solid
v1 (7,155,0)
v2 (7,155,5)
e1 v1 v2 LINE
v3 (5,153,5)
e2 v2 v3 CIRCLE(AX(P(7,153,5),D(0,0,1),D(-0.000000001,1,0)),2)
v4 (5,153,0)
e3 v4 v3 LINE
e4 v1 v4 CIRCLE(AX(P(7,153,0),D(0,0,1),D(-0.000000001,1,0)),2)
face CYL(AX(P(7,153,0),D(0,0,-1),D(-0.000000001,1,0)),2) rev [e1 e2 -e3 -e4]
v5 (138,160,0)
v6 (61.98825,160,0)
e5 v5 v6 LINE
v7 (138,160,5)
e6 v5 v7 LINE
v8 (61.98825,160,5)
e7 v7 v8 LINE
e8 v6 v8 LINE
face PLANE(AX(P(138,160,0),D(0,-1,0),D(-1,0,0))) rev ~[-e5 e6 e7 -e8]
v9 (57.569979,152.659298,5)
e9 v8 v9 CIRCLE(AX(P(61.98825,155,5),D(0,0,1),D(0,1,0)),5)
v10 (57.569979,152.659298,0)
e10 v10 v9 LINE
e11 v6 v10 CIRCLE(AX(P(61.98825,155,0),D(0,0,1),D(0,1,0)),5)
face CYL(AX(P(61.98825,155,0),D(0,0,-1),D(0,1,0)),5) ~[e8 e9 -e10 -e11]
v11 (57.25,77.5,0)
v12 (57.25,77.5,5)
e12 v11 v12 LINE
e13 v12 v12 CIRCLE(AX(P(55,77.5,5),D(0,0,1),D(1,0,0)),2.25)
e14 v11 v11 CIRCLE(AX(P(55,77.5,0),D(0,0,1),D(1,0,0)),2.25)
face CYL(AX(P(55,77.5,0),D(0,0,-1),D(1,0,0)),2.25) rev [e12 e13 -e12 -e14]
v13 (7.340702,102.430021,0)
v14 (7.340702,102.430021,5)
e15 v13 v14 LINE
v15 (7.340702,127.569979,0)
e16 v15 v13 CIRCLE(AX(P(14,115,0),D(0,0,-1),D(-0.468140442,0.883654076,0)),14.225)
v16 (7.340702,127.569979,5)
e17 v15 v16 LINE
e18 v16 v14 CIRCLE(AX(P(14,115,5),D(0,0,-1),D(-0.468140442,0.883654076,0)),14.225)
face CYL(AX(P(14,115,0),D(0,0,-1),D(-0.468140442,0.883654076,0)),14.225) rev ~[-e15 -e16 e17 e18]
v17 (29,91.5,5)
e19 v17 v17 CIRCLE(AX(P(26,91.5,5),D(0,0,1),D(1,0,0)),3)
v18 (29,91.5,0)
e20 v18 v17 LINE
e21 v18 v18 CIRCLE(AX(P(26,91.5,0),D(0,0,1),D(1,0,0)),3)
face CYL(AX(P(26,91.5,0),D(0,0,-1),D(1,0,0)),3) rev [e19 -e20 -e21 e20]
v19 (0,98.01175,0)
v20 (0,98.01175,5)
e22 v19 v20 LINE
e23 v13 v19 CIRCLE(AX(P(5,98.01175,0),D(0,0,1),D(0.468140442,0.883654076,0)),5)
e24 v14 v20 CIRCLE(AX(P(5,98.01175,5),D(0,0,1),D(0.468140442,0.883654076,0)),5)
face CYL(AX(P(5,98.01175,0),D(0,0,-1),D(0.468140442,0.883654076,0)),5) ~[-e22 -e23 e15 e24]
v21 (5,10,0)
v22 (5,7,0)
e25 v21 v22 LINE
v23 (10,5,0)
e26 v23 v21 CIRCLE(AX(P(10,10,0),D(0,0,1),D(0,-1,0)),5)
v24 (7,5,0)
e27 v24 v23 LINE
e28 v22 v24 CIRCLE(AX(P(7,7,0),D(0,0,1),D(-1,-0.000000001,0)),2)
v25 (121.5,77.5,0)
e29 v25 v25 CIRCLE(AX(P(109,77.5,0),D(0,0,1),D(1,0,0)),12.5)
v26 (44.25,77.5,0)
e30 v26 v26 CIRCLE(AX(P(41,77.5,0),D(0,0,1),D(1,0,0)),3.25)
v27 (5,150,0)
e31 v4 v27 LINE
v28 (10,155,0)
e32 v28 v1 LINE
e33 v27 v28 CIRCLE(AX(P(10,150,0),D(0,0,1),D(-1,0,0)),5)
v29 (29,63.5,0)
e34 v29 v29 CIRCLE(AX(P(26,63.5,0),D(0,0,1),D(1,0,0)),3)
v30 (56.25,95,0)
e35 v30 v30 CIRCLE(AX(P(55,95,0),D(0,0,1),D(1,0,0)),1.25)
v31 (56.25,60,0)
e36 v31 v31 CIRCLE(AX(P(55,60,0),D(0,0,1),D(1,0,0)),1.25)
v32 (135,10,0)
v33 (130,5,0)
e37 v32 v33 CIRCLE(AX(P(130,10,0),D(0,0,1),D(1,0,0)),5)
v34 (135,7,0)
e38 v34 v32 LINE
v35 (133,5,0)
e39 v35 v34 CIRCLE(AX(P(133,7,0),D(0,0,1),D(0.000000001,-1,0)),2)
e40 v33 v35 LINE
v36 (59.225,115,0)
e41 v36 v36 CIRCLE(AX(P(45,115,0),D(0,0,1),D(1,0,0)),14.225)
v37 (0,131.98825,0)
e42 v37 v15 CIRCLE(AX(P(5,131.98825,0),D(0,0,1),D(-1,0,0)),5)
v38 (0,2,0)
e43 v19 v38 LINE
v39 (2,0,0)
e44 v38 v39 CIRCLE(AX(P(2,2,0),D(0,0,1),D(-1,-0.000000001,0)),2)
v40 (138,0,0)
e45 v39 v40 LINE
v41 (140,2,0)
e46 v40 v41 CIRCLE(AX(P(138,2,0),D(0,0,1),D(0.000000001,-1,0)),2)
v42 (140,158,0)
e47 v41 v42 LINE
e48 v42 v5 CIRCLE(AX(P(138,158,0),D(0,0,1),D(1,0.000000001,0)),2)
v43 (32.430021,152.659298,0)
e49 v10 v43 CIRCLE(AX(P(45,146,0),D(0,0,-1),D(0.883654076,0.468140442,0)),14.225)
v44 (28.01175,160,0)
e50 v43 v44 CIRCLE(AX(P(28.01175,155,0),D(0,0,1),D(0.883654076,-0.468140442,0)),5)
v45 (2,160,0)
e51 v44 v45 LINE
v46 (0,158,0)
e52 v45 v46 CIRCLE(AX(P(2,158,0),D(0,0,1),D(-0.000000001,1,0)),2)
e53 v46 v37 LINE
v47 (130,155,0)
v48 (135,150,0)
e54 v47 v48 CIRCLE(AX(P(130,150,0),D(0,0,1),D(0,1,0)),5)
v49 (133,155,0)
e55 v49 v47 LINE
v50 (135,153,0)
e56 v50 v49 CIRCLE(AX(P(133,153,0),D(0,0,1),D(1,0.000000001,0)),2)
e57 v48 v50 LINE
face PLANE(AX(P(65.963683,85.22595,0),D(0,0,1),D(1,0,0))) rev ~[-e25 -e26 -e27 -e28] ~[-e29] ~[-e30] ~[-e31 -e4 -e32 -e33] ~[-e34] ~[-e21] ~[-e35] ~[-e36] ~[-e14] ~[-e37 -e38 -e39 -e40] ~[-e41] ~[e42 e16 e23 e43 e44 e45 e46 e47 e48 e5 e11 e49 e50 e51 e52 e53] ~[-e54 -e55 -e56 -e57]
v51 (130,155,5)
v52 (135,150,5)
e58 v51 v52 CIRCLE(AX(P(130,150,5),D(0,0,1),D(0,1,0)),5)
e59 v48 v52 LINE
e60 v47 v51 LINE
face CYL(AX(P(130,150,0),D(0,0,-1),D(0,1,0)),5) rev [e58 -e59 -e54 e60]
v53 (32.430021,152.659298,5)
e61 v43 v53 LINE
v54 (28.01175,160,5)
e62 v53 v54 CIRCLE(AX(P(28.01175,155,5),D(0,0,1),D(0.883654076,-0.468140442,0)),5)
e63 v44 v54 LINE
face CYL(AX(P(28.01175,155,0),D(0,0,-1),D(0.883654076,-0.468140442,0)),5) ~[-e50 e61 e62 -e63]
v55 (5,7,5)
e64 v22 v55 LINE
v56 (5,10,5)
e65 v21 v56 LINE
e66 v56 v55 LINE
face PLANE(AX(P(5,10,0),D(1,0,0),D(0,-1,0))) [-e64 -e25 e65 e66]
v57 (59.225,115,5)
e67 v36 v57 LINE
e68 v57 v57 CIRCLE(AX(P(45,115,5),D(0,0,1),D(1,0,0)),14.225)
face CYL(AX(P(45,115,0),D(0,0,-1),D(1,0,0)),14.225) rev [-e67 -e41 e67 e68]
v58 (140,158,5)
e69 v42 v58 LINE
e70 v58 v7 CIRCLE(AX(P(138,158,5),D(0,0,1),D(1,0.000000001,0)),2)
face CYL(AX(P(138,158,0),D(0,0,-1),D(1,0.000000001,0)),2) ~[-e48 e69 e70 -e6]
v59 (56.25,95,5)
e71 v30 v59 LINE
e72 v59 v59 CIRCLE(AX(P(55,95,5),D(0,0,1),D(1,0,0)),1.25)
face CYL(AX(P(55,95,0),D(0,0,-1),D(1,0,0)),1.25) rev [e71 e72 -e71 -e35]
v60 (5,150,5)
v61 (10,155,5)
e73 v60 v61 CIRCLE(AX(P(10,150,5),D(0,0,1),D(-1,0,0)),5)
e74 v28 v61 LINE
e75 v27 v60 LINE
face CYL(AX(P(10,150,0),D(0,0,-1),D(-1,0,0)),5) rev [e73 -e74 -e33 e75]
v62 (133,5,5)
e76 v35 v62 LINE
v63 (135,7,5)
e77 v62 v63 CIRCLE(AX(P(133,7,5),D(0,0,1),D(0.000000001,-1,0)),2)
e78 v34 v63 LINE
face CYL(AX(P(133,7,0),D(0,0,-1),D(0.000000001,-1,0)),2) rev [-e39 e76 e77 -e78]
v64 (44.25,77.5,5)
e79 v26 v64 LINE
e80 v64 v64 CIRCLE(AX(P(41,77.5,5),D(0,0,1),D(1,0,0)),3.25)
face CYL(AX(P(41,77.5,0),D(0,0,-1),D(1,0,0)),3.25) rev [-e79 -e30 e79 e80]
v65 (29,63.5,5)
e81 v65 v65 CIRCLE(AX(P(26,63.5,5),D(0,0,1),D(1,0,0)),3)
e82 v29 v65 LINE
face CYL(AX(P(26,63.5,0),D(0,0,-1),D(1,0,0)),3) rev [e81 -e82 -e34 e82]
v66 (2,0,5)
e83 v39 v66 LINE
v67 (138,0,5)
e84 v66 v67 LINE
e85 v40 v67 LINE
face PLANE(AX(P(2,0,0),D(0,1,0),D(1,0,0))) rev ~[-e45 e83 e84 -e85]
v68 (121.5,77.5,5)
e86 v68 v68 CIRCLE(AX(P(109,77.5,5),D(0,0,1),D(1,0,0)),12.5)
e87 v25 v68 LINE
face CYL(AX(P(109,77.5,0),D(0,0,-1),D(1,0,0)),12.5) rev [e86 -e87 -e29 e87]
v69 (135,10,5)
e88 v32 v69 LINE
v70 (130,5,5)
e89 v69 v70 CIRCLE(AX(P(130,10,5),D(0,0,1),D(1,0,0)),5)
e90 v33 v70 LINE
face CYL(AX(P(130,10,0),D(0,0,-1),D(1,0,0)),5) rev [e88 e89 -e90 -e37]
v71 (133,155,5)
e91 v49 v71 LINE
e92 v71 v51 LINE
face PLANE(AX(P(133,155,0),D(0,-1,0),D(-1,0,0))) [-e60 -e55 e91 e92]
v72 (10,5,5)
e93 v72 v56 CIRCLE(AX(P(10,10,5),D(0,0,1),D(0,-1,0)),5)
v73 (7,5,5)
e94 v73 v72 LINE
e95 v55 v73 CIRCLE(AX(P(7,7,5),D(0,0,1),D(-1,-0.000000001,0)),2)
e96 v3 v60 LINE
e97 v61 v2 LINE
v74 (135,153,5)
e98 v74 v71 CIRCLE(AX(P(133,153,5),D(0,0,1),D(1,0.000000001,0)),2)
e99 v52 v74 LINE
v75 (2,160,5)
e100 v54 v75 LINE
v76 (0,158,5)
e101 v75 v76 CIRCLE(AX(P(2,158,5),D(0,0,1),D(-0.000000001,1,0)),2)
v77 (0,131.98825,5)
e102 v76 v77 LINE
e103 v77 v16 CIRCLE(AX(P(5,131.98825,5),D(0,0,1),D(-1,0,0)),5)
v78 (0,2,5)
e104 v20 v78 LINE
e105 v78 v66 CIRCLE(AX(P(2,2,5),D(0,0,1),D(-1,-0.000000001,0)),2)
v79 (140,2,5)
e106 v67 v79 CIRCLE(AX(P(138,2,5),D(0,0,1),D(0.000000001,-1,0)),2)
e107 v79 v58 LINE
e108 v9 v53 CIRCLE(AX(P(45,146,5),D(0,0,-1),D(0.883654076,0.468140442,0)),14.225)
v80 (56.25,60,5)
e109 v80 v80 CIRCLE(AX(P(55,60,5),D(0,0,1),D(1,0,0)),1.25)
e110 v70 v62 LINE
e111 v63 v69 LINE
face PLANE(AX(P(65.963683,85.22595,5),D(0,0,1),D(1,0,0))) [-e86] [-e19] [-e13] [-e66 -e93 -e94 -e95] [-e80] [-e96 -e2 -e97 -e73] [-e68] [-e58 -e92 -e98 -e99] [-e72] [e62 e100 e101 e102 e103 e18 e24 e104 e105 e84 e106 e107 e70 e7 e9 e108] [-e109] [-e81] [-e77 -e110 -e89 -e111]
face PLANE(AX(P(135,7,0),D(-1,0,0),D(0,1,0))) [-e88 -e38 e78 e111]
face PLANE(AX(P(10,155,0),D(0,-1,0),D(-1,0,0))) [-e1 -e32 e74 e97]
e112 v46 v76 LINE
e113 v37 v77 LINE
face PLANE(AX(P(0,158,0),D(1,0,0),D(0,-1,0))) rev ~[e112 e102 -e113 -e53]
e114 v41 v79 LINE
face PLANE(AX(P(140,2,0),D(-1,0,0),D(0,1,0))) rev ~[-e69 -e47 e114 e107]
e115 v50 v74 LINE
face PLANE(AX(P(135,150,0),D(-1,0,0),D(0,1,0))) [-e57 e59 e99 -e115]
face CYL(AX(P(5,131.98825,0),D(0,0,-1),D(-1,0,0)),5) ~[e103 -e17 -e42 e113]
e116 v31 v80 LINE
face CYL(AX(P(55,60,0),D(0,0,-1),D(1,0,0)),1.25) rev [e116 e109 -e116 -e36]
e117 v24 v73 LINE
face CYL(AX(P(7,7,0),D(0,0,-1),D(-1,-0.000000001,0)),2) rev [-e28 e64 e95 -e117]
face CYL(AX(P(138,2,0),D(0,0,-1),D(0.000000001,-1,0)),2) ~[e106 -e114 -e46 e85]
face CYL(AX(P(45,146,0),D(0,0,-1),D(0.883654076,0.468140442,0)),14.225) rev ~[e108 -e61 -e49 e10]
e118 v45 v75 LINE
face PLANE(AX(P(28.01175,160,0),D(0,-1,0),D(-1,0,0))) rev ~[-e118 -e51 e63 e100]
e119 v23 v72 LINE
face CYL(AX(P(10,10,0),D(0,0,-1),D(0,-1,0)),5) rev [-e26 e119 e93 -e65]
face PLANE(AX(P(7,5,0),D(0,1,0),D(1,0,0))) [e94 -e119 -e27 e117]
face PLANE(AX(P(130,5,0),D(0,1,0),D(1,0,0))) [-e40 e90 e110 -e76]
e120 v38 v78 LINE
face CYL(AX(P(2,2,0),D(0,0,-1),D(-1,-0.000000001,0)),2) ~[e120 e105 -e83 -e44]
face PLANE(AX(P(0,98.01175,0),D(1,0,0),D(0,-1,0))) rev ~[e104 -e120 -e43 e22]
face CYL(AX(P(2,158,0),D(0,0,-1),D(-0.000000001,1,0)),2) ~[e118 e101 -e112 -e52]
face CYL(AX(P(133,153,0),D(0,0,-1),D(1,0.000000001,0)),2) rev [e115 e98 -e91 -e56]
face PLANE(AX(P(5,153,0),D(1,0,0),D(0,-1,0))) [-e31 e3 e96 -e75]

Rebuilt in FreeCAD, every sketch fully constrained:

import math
import FreeCAD as App
import Part
import Sketcher
Q = App.Units.Quantity

doc = App.newDocument("Part")
body = doc.addObject("PartDesign::Body", "Body")

# Sketch on XY plane
sketch1 = doc.addObject("Sketcher::SketchObject", "Sketch")
body.addObject(sketch1)
sketch1.AttachmentSupport = (doc.XY_Plane, [""])
sketch1.MapMode = "FlatFace"
sketch1.addGeometry([
    Part.LineSegment(App.Vector(28.01175, 160, 0), App.Vector(2, 160, 0)),  # 0
    Part.ArcOfCircle(Part.Circle(App.Vector(2, 158, 0), App.Vector(0, 0, 1), 2), math.radians(90), math.radians(180)),  # 1
    Part.LineSegment(App.Vector(0, 158, 0), App.Vector(0, 131.98825, 0)),  # 2
    Part.ArcOfCircle(Part.Circle(App.Vector(5, 131.98825, 0), App.Vector(0, 0, 1), 5), math.radians(-180), math.radians(-62.086344)),  # 3
    Part.ArcOfCircle(Part.Circle(App.Vector(14, 115, 0), App.Vector(0, 0, 1), 14.225), math.radians(-117.913656), math.radians(117.913656)),  # 4
    Part.ArcOfCircle(Part.Circle(App.Vector(5, 98.01175, 0), App.Vector(0, 0, 1), 5), math.radians(62.086344), math.radians(180)),  # 5
    Part.LineSegment(App.Vector(0, 98.01175, 0), App.Vector(0, 2, 0)),  # 6
    Part.ArcOfCircle(Part.Circle(App.Vector(2, 2, 0), App.Vector(0, 0, 1), 2), math.radians(-180), math.radians(-90)),  # 7
    Part.LineSegment(App.Vector(2, 0, 0), App.Vector(138, 0, 0)),  # 8
    Part.ArcOfCircle(Part.Circle(App.Vector(138, 2, 0), App.Vector(0, 0, 1), 2), math.radians(-90), math.radians(0)),  # 9
    Part.LineSegment(App.Vector(140, 2, 0), App.Vector(140, 158, 0)),  # 10
    Part.ArcOfCircle(Part.Circle(App.Vector(138, 158, 0), App.Vector(0, 0, 1), 2), math.radians(0), math.radians(90)),  # 11
    Part.LineSegment(App.Vector(138, 160, 0), App.Vector(61.98825, 160, 0)),  # 12
    Part.ArcOfCircle(Part.Circle(App.Vector(61.98825, 155, 0), App.Vector(0, 0, 1), 5), math.radians(90), math.radians(207.913656)),  # 13
    Part.ArcOfCircle(Part.Circle(App.Vector(45, 146, 0), App.Vector(0, 0, 1), 14.225), math.radians(152.086344), math.radians(387.913656)),  # 14
    Part.ArcOfCircle(Part.Circle(App.Vector(28.01175, 155, 0), App.Vector(0, 0, 1), 5), math.radians(-27.913656), math.radians(90)),  # 15
    Part.LineSegment(App.Vector(10, 5, 0), App.Vector(7, 5, 0)),  # 16
    Part.ArcOfCircle(Part.Circle(App.Vector(7, 7, 0), App.Vector(0, 0, 1), 2), math.radians(-180), math.radians(-90)),  # 17
    Part.LineSegment(App.Vector(5, 7, 0), App.Vector(5, 10, 0)),  # 18
    Part.ArcOfCircle(Part.Circle(App.Vector(10, 10, 0), App.Vector(0, 0, 1), 5), math.radians(-90), math.radians(180)),  # 19
    Part.Circle(App.Vector(26, 63.5, 0), App.Vector(0, 0, 1), 3),  # 20
    Part.Circle(App.Vector(55, 60, 0), App.Vector(0, 0, 1), 1.25),  # 21
    Part.Circle(App.Vector(41, 77.5, 0), App.Vector(0, 0, 1), 3.25),  # 22
    Part.Circle(App.Vector(55, 77.5, 0), App.Vector(0, 0, 1), 2.25),  # 23
    Part.LineSegment(App.Vector(135, 10, 0), App.Vector(135, 7, 0)),  # 24
    Part.ArcOfCircle(Part.Circle(App.Vector(133, 7, 0), App.Vector(0, 0, 1), 2), math.radians(-90), math.radians(0)),  # 25
    Part.LineSegment(App.Vector(133, 5, 0), App.Vector(130, 5, 0)),  # 26
    Part.ArcOfCircle(Part.Circle(App.Vector(130, 10, 0), App.Vector(0, 0, 1), 5), math.radians(0), math.radians(270)),  # 27
    Part.Circle(App.Vector(109, 77.5, 0), App.Vector(0, 0, 1), 12.5),  # 28
    Part.Circle(App.Vector(26, 91.5, 0), App.Vector(0, 0, 1), 3),  # 29
    Part.Circle(App.Vector(55, 95, 0), App.Vector(0, 0, 1), 1.25),  # 30
    Part.Circle(App.Vector(45, 115, 0), App.Vector(0, 0, 1), 14.225),  # 31
    Part.LineSegment(App.Vector(5, 150, 0), App.Vector(5, 153, 0)),  # 32
    Part.ArcOfCircle(Part.Circle(App.Vector(7, 153, 0), App.Vector(0, 0, 1), 2), math.radians(90), math.radians(180)),  # 33
    Part.LineSegment(App.Vector(7, 155, 0), App.Vector(10, 155, 0)),  # 34
    Part.ArcOfCircle(Part.Circle(App.Vector(10, 150, 0), App.Vector(0, 0, 1), 5), math.radians(180), math.radians(450)),  # 35
    Part.LineSegment(App.Vector(130, 155, 0), App.Vector(133, 155, 0)),  # 36
    Part.ArcOfCircle(Part.Circle(App.Vector(133, 153, 0), App.Vector(0, 0, 1), 2), math.radians(0), math.radians(90)),  # 37
    Part.LineSegment(App.Vector(135, 153, 0), App.Vector(135, 150, 0)),  # 38
    Part.ArcOfCircle(Part.Circle(App.Vector(130, 150, 0), App.Vector(0, 0, 1), 5), math.radians(90), math.radians(360)),  # 39
], False)
sketch1.addConstraint([
    Sketcher.Constraint("Tangent", 0, 2, 1, 1),
    Sketcher.Constraint("Tangent", 1, 2, 2, 1),
    Sketcher.Constraint("Tangent", 2, 2, 3, 1),
    Sketcher.Constraint("Tangent", 3, 2, 4, 2),
    Sketcher.Constraint("Tangent", 4, 1, 5, 1),
    Sketcher.Constraint("Tangent", 5, 2, 6, 1),
    Sketcher.Constraint("Tangent", 6, 2, 7, 1),
    Sketcher.Constraint("Tangent", 7, 2, 8, 1),
    Sketcher.Constraint("Tangent", 8, 2, 9, 1),
    Sketcher.Constraint("Tangent", 9, 2, 10, 1),
    Sketcher.Constraint("Tangent", 10, 2, 11, 1),
    Sketcher.Constraint("Tangent", 11, 2, 12, 1),
    Sketcher.Constraint("Tangent", 12, 2, 13, 1),
    Sketcher.Constraint("Tangent", 13, 2, 14, 2),
    Sketcher.Constraint("Tangent", 14, 1, 15, 1),
    Sketcher.Constraint("Tangent", 15, 2, 0, 1),
    Sketcher.Constraint("Tangent", 16, 2, 17, 2),
    Sketcher.Constraint("Tangent", 17, 1, 18, 1),
    Sketcher.Constraint("Tangent", 18, 2, 19, 2),
    Sketcher.Constraint("Tangent", 19, 1, 16, 1),
    Sketcher.Constraint("Tangent", 24, 2, 25, 2),
    Sketcher.Constraint("Tangent", 25, 1, 26, 1),
    Sketcher.Constraint("Tangent", 26, 2, 27, 2),
    Sketcher.Constraint("Tangent", 27, 1, 24, 1),
    Sketcher.Constraint("Tangent", 32, 2, 33, 2),
    Sketcher.Constraint("Tangent", 33, 1, 34, 1),
    Sketcher.Constraint("Tangent", 34, 2, 35, 2),
    Sketcher.Constraint("Tangent", 35, 1, 32, 1),
    Sketcher.Constraint("Tangent", 36, 2, 37, 2),
    Sketcher.Constraint("Tangent", 37, 1, 38, 1),
    Sketcher.Constraint("Tangent", 38, 2, 39, 2),
    Sketcher.Constraint("Tangent", 39, 1, 36, 1),
    Sketcher.Constraint("Horizontal", 0),
    Sketcher.Constraint("Vertical", 2),
    Sketcher.Constraint("Vertical", 6),
    Sketcher.Constraint("Horizontal", 8),
    Sketcher.Constraint("Vertical", 10),
    Sketcher.Constraint("Horizontal", 12),
    Sketcher.Constraint("Horizontal", 16),
    Sketcher.Constraint("Vertical", 18),
    Sketcher.Constraint("Vertical", 24),
    Sketcher.Constraint("Horizontal", 26),
    Sketcher.Constraint("Vertical", 32),
    Sketcher.Constraint("Horizontal", 34),
    Sketcher.Constraint("Horizontal", 36),
    Sketcher.Constraint("Vertical", 38),
    Sketcher.Constraint("Equal", 3, 5),
    Sketcher.Constraint("Equal", 1, 7),
    Sketcher.Constraint("Equal", 7, 9),
    Sketcher.Constraint("Equal", 9, 11),
    Sketcher.Constraint("Equal", 5, 13),
    Sketcher.Constraint("Equal", 4, 14),
    Sketcher.Constraint("Equal", 13, 15),
    Sketcher.Constraint("Equal", 11, 17),
    Sketcher.Constraint("Equal", 15, 19),
    Sketcher.Constraint("Equal", 17, 25),
    Sketcher.Constraint("Equal", 19, 27),
    Sketcher.Constraint("Equal", 20, 29),
    Sketcher.Constraint("Equal", 21, 30),
    Sketcher.Constraint("Equal", 14, 31),
    Sketcher.Constraint("Equal", 25, 33),
    Sketcher.Constraint("Equal", 27, 35),
    Sketcher.Constraint("Equal", 33, 37),
    Sketcher.Constraint("Equal", 35, 39),
    Sketcher.Constraint("PointOnObject", 1, 2, -2),
    Sketcher.Constraint("PointOnObject", 5, 2, -2),
    Sketcher.Constraint("PointOnObject", 7, 2, -1),
    Sketcher.Constraint("Horizontal", 1, 3, 11, 3),
    Sketcher.Constraint("Horizontal", 22, 3, 23, 3),
    Sketcher.Constraint("Horizontal", 17, 3, 25, 3),
    Sketcher.Constraint("Horizontal", 23, 3, 28, 3),
    Sketcher.Constraint("Horizontal", 4, 3, 31, 3),
    Sketcher.Constraint("Horizontal", 33, 3, 37, 3),
    Sketcher.Constraint("Horizontal", 15, 3, 33, 1),
    Sketcher.Constraint("Vertical", 21, 3, 23, 3),
    Sketcher.Constraint("Vertical", 20, 3, 29, 3),
    Sketcher.Constraint("Vertical", 23, 3, 30, 3),
    Sketcher.Constraint("Vertical", 14, 3, 31, 3),
    Sketcher.Constraint("Vertical", 17, 3, 33, 3),
    Sketcher.Constraint("Vertical", 25, 3, 37, 3),
    Sketcher.Constraint("Vertical", 5, 3, 17, 1),
    Sketcher.Constraint("Equal", 0, 2),
    Sketcher.Constraint("Diameter", 20, Q("6 mm")),
    Sketcher.Constraint("Diameter", 28, Q("25 mm")),
    Sketcher.Constraint("Radius", 1, Q("2 mm")),
    Sketcher.Constraint("Radius", 3, Q("5 mm")),
    Sketcher.Constraint("Diameter", 21, Q("2.5 mm")),
    Sketcher.Constraint("Diameter", 22, Q("6.5 mm")),
    Sketcher.Constraint("Diameter", 23, Q("4.5 mm")),
    Sketcher.Constraint("Diameter", 31, Q("28.45 mm")),
    Sketcher.Constraint("DistanceX", 8, 1, 8, 2, Q("136 mm")),
    Sketcher.Constraint("DistanceY", 10, 1, 10, 2, Q("156 mm")),
    Sketcher.Constraint("DistanceX", -1, 1, 4, 3, Q("14 mm")),
    Sketcher.Constraint("DistanceY", -1, 1, 4, 3, Q("115 mm")),
    Sketcher.Constraint("DistanceX", -1, 1, 14, 3, Q("45 mm")),
    Sketcher.Constraint("DistanceY", -1, 1, 17, 3, Q("7 mm")),
    Sketcher.Constraint("DistanceX", -1, 1, 20, 3, Q("26 mm")),
    Sketcher.Constraint("DistanceX", -1, 1, 21, 3, Q("55 mm")),
    Sketcher.Constraint("DistanceY", -1, 1, 21, 3, Q("60 mm")),
    Sketcher.Constraint("DistanceX", -1, 1, 22, 3, Q("41 mm")),
    Sketcher.Constraint("DistanceX", -1, 1, 25, 3, Q("133 mm")),
    Sketcher.Constraint("DistanceX", -1, 1, 28, 3, Q("109 mm")),
    Sketcher.Constraint("DistanceY", -1, 1, 30, 3, Q("95 mm")),
    Sketcher.Constraint("DistanceY", 20, 3, 22, 3, Q("14 mm")),
    Sketcher.Constraint("DistanceY", 22, 3, 29, 3, Q("14 mm")),
    Sketcher.Constraint("DistanceY", -1, 1, 20, 3, Q("63.5 mm")),
])
pad1 = doc.addObject("PartDesign::Pad", "Pad")
body.addObject(pad1)
pad1.Profile = sketch1
pad1.Length = 5

doc.recompute()
